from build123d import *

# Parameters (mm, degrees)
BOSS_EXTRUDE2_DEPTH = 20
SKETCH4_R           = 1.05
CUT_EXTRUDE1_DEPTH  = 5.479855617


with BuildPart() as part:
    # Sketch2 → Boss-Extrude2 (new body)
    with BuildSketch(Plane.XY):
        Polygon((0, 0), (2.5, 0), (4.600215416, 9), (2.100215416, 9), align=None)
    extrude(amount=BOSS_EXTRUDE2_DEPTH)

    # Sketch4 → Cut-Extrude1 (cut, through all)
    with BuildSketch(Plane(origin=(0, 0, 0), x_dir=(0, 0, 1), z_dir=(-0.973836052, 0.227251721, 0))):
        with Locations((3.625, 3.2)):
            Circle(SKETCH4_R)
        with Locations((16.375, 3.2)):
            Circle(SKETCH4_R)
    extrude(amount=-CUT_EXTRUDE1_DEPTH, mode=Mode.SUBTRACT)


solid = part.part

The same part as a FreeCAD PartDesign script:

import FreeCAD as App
import Part
import Sketcher
Q = App.Units.Quantity


def add_polygon(sketch, points):
    """Adds a closed chain of lines whose ends are joined by coincident constraints."""
    first, n = sketch.GeometryCount, len(points)
    for a, b in zip(points, points[1:] + points[:1]):
        sketch.addGeometry(Part.LineSegment(App.Vector(*a, 0), App.Vector(*b, 0)), False)
    for i in range(n):
        sketch.addConstraint(Sketcher.Constraint("Coincident", first + i, 2, first + (i + 1) % n, 1))

doc = App.newDocument("Part")
body = doc.addObject("PartDesign::Body", "Body")

sketch1 = body.newObject("Sketcher::SketchObject", "Sketch")
sketch1.AttachmentSupport = (doc.getObject("XY_Plane"), [""])
sketch1.MapMode = "FlatFace"
add_polygon(sketch1, [(0, 0), (2.5, 0), (4.600215, 9), (2.100215, 9)])
sketch1.addConstraint([
    Sketcher.Constraint("Horizontal", 0),
    Sketcher.Constraint("Horizontal", 2),
    Sketcher.Constraint("Coincident", 3, 2, -1, 1),
    Sketcher.Constraint("Parallel", 1, 3),
    Sketcher.Constraint("DistanceX", 0, 1, 0, 2, Q("2.5 mm")),
    Sketcher.Constraint("DistanceY", -1, 1, 1, 2, Q("9 mm")),
    Sketcher.Constraint("Distance", 1, Q("9.241802 mm")),
])
pad1 = body.newObject("PartDesign::Pad", "Pad")
pad1.Profile = sketch1
pad1.Length = 20

sketch2 = body.newObject("Sketcher::SketchObject", "Sketch001")
sketch2.Placement = App.Placement(App.Vector(0, 0, 0), App.Rotation(App.Vector(0, 0, 1), App.Vector(0.227251721, 0.973836052, 0), App.Vector(-0.973836052, 0.227251721, 0), "ZXY"))
sketch2.addGeometry([
    Part.Circle(App.Vector(3.625, 3.2, 0), App.Vector(0, 0, 1), 1.05),
    Part.Circle(App.Vector(16.375, 3.2, 0), App.Vector(0, 0, 1), 1.05),
], False)
sketch2.addConstraint([
    Sketcher.Constraint("Equal", 0, 1),
    Sketcher.Constraint("Horizontal", 0, 3, 1, 3),
    Sketcher.Constraint("Diameter", 0, Q("2.1 mm")),
    Sketcher.Constraint("DistanceY", -1, 1, 0, 3, Q("3.2 mm")),
    Sketcher.Constraint("DistanceX", 0, 3, 1, 3, Q("12.75 mm")),
    Sketcher.Constraint("DistanceX", -1, 1, 0, 3, Q("3.625 mm")),
])
pocket1 = body.newObject("PartDesign::Pocket", "Pocket")
pocket1.Profile = sketch2
pocket1.Type = "ThroughAll"

doc.recompute()
